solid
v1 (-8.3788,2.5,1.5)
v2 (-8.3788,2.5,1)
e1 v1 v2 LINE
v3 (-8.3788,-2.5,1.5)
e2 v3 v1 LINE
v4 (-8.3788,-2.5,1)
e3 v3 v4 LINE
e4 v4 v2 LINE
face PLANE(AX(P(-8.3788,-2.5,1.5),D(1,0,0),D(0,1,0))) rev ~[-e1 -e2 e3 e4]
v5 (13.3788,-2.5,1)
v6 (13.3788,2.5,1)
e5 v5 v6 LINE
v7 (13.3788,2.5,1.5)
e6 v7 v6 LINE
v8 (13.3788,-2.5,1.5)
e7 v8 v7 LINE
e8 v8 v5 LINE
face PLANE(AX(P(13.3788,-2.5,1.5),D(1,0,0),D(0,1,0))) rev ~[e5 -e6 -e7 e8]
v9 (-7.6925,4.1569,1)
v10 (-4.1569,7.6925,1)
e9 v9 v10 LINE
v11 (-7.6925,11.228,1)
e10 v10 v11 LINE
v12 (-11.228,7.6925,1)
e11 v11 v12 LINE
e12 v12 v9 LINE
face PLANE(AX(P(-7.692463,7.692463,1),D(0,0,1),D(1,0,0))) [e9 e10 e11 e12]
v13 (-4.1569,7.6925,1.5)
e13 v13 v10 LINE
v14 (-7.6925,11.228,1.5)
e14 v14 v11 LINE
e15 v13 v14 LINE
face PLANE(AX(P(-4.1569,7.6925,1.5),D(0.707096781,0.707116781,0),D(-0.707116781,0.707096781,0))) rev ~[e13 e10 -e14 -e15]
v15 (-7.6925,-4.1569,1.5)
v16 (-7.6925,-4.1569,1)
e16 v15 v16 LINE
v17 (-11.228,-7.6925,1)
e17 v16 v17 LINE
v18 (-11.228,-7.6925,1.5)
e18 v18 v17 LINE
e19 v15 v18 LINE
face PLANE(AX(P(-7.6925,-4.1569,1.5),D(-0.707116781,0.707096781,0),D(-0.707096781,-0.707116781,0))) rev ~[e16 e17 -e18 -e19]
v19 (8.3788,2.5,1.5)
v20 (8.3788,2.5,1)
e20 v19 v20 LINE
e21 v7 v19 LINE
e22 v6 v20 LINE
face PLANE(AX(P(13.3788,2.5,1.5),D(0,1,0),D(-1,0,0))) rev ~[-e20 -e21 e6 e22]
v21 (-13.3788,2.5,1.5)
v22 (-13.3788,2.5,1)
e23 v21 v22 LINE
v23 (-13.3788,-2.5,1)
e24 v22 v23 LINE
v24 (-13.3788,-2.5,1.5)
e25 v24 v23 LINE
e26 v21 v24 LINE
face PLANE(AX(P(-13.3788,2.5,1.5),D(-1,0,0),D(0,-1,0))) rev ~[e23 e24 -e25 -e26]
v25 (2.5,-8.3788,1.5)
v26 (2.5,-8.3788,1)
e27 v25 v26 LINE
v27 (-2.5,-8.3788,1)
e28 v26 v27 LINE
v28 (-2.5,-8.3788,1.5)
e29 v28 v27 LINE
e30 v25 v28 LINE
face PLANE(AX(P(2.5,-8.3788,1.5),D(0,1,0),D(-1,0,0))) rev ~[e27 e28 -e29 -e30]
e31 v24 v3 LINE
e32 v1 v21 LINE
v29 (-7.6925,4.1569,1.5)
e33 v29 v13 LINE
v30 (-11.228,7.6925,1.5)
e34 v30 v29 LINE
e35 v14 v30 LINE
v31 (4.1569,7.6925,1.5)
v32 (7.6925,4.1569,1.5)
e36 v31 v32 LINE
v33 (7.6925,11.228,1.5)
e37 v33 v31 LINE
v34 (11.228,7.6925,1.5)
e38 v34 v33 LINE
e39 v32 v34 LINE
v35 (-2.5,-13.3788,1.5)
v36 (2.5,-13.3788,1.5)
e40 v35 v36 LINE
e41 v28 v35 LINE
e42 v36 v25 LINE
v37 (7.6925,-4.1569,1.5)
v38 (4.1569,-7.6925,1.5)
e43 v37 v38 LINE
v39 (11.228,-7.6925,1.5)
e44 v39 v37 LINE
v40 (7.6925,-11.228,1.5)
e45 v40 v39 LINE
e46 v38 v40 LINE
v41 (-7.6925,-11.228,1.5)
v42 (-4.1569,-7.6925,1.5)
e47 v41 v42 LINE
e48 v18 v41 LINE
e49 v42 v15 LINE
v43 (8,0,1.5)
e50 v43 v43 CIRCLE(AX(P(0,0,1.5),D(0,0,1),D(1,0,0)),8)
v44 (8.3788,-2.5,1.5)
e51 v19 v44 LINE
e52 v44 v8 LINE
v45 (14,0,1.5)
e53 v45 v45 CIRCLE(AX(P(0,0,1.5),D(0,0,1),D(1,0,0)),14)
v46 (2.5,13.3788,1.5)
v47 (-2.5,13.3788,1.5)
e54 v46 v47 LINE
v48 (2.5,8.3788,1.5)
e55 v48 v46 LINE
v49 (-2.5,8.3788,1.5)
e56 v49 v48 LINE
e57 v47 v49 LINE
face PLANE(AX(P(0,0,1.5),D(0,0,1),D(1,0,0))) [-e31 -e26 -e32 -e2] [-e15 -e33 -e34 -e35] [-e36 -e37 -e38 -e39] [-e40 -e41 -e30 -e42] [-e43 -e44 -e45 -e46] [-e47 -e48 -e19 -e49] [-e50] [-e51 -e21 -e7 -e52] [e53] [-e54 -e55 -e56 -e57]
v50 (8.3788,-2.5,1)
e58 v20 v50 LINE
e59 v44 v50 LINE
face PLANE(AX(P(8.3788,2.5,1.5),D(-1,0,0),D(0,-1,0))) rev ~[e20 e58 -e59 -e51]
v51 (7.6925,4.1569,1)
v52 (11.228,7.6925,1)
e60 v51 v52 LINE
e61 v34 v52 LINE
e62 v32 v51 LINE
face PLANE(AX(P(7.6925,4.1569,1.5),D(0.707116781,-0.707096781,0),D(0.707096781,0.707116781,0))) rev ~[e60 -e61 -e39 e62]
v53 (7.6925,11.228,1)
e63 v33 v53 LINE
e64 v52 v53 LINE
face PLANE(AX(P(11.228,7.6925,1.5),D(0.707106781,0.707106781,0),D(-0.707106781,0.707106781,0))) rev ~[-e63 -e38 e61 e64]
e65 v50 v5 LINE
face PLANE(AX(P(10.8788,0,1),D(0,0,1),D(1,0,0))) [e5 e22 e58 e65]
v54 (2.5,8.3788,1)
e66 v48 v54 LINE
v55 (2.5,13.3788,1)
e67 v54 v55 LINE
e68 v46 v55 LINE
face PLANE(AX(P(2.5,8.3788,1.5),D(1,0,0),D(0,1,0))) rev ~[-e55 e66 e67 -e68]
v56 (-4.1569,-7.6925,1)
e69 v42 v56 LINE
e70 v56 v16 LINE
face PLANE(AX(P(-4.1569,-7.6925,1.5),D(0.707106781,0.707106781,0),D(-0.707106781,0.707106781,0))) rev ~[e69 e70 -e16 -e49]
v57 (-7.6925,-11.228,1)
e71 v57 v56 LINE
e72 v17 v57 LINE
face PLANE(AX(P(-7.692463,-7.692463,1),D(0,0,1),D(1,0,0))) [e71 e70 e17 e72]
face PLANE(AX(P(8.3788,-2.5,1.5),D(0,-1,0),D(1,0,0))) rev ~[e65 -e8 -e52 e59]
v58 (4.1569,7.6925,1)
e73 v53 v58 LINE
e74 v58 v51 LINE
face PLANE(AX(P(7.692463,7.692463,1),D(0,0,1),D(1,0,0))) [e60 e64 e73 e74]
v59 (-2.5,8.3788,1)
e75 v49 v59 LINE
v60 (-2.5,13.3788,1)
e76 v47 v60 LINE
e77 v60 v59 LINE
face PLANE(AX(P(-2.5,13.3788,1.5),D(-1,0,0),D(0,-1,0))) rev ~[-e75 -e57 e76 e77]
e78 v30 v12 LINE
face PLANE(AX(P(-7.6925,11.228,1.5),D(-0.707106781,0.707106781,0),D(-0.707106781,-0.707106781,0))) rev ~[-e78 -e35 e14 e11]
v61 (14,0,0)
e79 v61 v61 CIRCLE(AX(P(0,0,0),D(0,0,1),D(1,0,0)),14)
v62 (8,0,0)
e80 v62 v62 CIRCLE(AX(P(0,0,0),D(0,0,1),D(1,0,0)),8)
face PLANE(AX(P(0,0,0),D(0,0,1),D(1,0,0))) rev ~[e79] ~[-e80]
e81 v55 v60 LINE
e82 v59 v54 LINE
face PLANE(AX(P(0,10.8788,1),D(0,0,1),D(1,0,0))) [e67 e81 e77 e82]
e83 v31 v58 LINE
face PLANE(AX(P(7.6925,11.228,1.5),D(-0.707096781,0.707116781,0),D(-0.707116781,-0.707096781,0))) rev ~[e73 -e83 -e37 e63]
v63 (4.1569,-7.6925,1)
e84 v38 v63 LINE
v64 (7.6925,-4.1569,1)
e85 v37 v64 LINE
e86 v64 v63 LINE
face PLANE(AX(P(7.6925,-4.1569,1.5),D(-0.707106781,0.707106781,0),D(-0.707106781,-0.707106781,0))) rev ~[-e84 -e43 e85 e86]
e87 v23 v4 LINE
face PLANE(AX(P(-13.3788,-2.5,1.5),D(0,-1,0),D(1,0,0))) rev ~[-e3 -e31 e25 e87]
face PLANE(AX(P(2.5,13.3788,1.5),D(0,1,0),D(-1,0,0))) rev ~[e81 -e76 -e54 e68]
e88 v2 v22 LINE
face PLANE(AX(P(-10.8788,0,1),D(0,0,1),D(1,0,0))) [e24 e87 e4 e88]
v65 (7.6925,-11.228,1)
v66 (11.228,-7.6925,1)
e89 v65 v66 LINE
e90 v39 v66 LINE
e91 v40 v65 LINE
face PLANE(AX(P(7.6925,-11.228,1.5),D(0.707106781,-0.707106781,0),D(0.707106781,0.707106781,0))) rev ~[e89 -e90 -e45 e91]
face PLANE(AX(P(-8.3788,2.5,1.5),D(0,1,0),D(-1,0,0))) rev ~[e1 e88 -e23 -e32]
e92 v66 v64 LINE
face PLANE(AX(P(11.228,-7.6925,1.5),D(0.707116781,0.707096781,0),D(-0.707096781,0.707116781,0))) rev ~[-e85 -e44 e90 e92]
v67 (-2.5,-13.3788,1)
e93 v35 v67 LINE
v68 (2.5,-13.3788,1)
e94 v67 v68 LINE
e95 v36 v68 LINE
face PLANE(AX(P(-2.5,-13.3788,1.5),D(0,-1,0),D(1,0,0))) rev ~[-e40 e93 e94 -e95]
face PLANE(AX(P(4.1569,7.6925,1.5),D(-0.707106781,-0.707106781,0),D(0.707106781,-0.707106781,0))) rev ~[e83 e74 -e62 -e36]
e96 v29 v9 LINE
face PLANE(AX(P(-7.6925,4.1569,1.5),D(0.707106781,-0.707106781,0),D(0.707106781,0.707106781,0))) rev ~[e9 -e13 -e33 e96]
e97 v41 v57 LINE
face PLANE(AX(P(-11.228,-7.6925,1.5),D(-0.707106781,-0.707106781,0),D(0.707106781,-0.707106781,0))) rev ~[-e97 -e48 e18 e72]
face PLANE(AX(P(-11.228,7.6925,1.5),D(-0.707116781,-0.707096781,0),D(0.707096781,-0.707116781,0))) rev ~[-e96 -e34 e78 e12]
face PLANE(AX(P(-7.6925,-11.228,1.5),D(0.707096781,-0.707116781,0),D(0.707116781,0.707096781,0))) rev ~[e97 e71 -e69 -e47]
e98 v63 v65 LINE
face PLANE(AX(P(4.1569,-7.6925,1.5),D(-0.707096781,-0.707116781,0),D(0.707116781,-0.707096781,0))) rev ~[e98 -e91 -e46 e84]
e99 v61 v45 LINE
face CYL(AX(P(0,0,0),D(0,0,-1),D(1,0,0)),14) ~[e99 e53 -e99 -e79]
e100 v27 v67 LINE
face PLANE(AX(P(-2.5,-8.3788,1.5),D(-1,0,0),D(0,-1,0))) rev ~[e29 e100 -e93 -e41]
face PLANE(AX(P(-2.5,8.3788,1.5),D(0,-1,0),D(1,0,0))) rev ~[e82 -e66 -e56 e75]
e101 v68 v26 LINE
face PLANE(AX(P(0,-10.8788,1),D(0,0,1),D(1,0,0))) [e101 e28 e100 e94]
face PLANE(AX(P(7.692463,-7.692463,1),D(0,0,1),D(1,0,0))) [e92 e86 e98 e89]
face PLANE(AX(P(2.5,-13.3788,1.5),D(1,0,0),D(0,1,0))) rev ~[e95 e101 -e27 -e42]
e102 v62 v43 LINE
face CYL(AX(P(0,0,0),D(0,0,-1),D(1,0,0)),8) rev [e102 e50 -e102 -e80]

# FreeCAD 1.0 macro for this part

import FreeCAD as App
import Part
import Sketcher
Q = App.Units.Quantity

doc = App.newDocument("Part")
body = doc.addObject("PartDesign::Body", "Body")

sketch1 = body.newObject("Sketcher::SketchObject", "Sketch")
sketch1.AttachmentSupport = (doc.getObject("XY_Plane"), [""])
sketch1.MapMode = "FlatFace"
sketch1.addGeometry([
    Part.Circle(App.Vector(0, 0, 0), App.Vector(0, 0, 1), 14),
    Part.Circle(App.Vector(0, 0, 0), App.Vector(0, 0, 1), 8),
], False)
sketch1.addConstraint([
    Sketcher.Constraint("Coincident", 0, 3, -1, 1),
    Sketcher.Constraint("Coincident", 1, 3, -1, 1),
    Sketcher.Constraint("Diameter", 0, Q("28 mm")),
    Sketcher.Constraint("Diameter", 1, Q("16 mm")),
])
pad1 = body.newObject("PartDesign::Pad", "Pad")
pad1.Profile = sketch1
pad1.Length = 1.5

sketch2 = body.newObject("Sketcher::SketchObject", "Sketch001")
sketch2.AttachmentSupport = (doc.getObject("XY_Plane"), [""])
sketch2.MapMode = "FlatFace"
sketch2.AttachmentOffset = App.Placement(App.Vector(0, 0, 1.5), App.Rotation())
sketch2.addGeometry([
    Part.LineSegment(App.Vector(4.2, -7.7, 0), App.Vector(7.7, -11.2, 0)),
    Part.LineSegment(App.Vector(7.7, -11.2, 0), App.Vector(11.2, -7.7, 0)),
    Part.LineSegment(App.Vector(11.2, -7.7, 0), App.Vector(7.7, -4.2, 0)),
    Part.LineSegment(App.Vector(7.7, -4.2, 0), App.Vector(4.2, -7.7, 0)),
    Part.LineSegment(App.Vector(8.4, -2.5, 0), App.Vector(13.4, -2.5, 0)),
    Part.LineSegment(App.Vector(13.4, -2.5, 0), App.Vector(13.4, 2.5, 0)),
    Part.LineSegment(App.Vector(13.4, 2.5, 0), App.Vector(8.4, 2.5, 0)),
    Part.LineSegment(App.Vector(8.4, 2.5, 0), App.Vector(8.4, -2.5, 0)),
    Part.LineSegment(App.Vector(4.2, 7.7, 0), App.Vector(7.7, 4.2, 0)),
    Part.LineSegment(App.Vector(7.7, 4.2, 0), App.Vector(11.2, 7.7, 0)),
    Part.LineSegment(App.Vector(11.2, 7.7, 0), App.Vector(7.7, 11.2, 0)),
    Part.LineSegment(App.Vector(7.7, 11.2, 0), App.Vector(4.2, 7.7, 0)),
    Part.LineSegment(App.Vector(-2.5, 13.4, 0), App.Vector(-2.5, 8.4, 0)),
    Part.LineSegment(App.Vector(-2.5, 8.4, 0), App.Vector(2.5, 8.4, 0)),
    Part.LineSegment(App.Vector(2.5, 8.4, 0), App.Vector(2.5, 13.4, 0)),
    Part.LineSegment(App.Vector(2.5, 13.4, 0), App.Vector(-2.5, 13.4, 0)),
    Part.LineSegment(App.Vector(-11.2, 7.7, 0), App.Vector(-7.7, 4.2, 0)),
    Part.LineSegment(App.Vector(-7.7, 4.2, 0), App.Vector(-4.2, 7.7, 0)),
    Part.LineSegment(App.Vector(-4.2, 7.7, 0), App.Vector(-7.7, 11.2, 0)),
    Part.LineSegment(App.Vector(-7.7, 11.2, 0), App.Vector(-11.2, 7.7, 0)),
    Part.LineSegment(App.Vector(-13.4, 2.5, 0), App.Vector(-13.4, -2.5, 0)),
    Part.LineSegment(App.Vector(-13.4, -2.5, 0), App.Vector(-8.4, -2.5, 0)),
    Part.LineSegment(App.Vector(-8.4, -2.5, 0), App.Vector(-8.4, 2.5, 0)),
    Part.LineSegment(App.Vector(-8.4, 2.5, 0), App.Vector(-13.4, 2.5, 0)),
    Part.LineSegment(App.Vector(-7.7, -11.2, 0), App.Vector(-4.2, -7.7, 0)),
    Part.LineSegment(App.Vector(-4.2, -7.7, 0), App.Vector(-7.7, -4.2, 0)),
    Part.LineSegment(App.Vector(-7.7, -4.2, 0), App.Vector(-11.2, -7.7, 0)),
    Part.LineSegment(App.Vector(-11.2, -7.7, 0), App.Vector(-7.7, -11.2, 0)),
    Part.LineSegment(App.Vector(2.5, -13.4, 0), App.Vector(2.5, -8.4, 0)),
    Part.LineSegment(App.Vector(2.5, -8.4, 0), App.Vector(-2.5, -8.4, 0)),
    Part.LineSegment(App.Vector(-2.5, -8.4, 0), App.Vector(-2.5, -13.4, 0)),
    Part.LineSegment(App.Vector(-2.5, -13.4, 0), App.Vector(2.5, -13.4, 0)),
], False)
sketch2.addConstraint([
    Sketcher.Constraint("Coincident", 0, 2, 1, 1),
    Sketcher.Constraint("Coincident", 1, 2, 2, 1),
    Sketcher.Constraint("Coincident", 2, 2, 3, 1),
    Sketcher.Constraint("Coincident", 3, 2, 0, 1),
    Sketcher.Constraint("Coincident", 4, 2, 5, 1),
    Sketcher.Constraint("Coincident", 5, 2, 6, 1),
    Sketcher.Constraint("Coincident", 6, 2, 7, 1),
    Sketcher.Constraint("Coincident", 7, 2, 4, 1),
    Sketcher.Constraint("Coincident", 8, 2, 9, 1),
    Sketcher.Constraint("Coincident", 9, 2, 10, 1),
    Sketcher.Constraint("Coincident", 10, 2, 11, 1),
    Sketcher.Constraint("Coincident", 11, 2, 8, 1),
    Sketcher.Constraint("Coincident", 12, 2, 13, 1),
    Sketcher.Constraint("Coincident", 13, 2, 14, 1),
    Sketcher.Constraint("Coincident", 14, 2, 15, 1),
    Sketcher.Constraint("Coincident", 15, 2, 12, 1),
    Sketcher.Constraint("Coincident", 16, 2, 17, 1),
    Sketcher.Constraint("Coincident", 17, 2, 18, 1),
    Sketcher.Constraint("Coincident", 18, 2, 19, 1),
    Sketcher.Constraint("Coincident", 19, 2, 16, 1),
    Sketcher.Constraint("Coincident", 20, 2, 21, 1),
    Sketcher.Constraint("Coincident", 21, 2, 22, 1),
    Sketcher.Constraint("Coincident", 22, 2, 23, 1),
    Sketcher.Constraint("Coincident", 23, 2, 20, 1),
    Sketcher.Constraint("Coincident", 24, 2, 25, 1),
    Sketcher.Constraint("Coincident", 25, 2, 26, 1),
    Sketcher.Constraint("Coincident", 26, 2, 27, 1),
    Sketcher.Constraint("Coincident", 27, 2, 24, 1),
    Sketcher.Constraint("Coincident", 28, 2, 29, 1),
    Sketcher.Constraint("Coincident", 29, 2, 30, 1),
    Sketcher.Constraint("Coincident", 30, 2, 31, 1),
    Sketcher.Constraint("Coincident", 31, 2, 28, 1),
    Sketcher.Constraint("Horizontal", 4),
    Sketcher.Constraint("Vertical", 5),
    Sketcher.Constraint("Horizontal", 6),
    Sketcher.Constraint("Vertical", 7),
    Sketcher.Constraint("Vertical", 12),
    Sketcher.Constraint("Horizontal", 13),
    Sketcher.Constraint("Vertical", 14),
    Sketcher.Constraint("Horizontal", 15),
    Sketcher.Constraint("Vertical", 20),
    Sketcher.Constraint("Horizontal", 21),
    Sketcher.Constraint("Vertical", 22),
    Sketcher.Constraint("Horizontal", 23),
    Sketcher.Constraint("Vertical", 28),
    Sketcher.Constraint("Horizontal", 29),
    Sketcher.Constraint("Vertical", 30),
    Sketcher.Constraint("Horizontal", 31),
    Sketcher.Constraint("Symmetric", 2, 2, 16, 2, -1, 1),
    Sketcher.Constraint("Symmetric", 3, 2, 17, 2, -1, 1),
    Sketcher.Constraint("Symmetric", 0, 2, 18, 2, -1, 1),
    Sketcher.Constraint("Symmetric", 1, 2, 19, 2, -1, 1),
    Sketcher.Constraint("Symmetric", 5, 2, 20, 2, -1, 1),
    Sketcher.Constraint("Symmetric", 7, 2, 22, 2, -1, 1),
    Sketcher.Constraint("Symmetric", 11, 2, 24, 2, -1, 1),
    Sketcher.Constraint("Symmetric", 8, 2, 25, 2, -1, 1),
    Sketcher.Constraint("Symmetric", 9, 2, 26, 2, -1, 1),
    Sketcher.Constraint("Symmetric", 10, 2, 27, 2, -1, 1),
    Sketcher.Constraint("Symmetric", 12, 2, 28, 2, -1, 1),
    Sketcher.Constraint("Symmetric", 14, 2, 30, 2, -1, 1),
    Sketcher.Constraint("Symmetric", 8, 2, 16, 2, -2),
    Sketcher.Constraint("Symmetric", 11, 2, 17, 2, -2),
    Sketcher.Constraint("Symmetric", 10, 2, 18, 2, -2),
    Sketcher.Constraint("Symmetric", 9, 2, 19, 2, -2),
    Sketcher.Constraint("Perpendicular", 0, 1),
    Sketcher.Constraint("Perpendicular", 1, 2),
    Sketcher.Constraint("Perpendicular", 2, 3),
    Sketcher.Constraint("Perpendicular", 3, 8),
    Sketcher.Constraint("Horizontal", 1, 2, 3, 2),
    Sketcher.Constraint("Horizontal", 7, 2, 20, 2),
    Sketcher.Constraint("Vertical", 14, 2, 28, 2),
    Sketcher.Constraint("Equal", 6, 13),
    Sketcher.Constraint("Equal", 31, 5),
    Sketcher.Constraint("Equal", 7, 12),
    Sketcher.Constraint("DistanceX", 4, 1, 4, 2, Q("5 mm")),
    Sketcher.Constraint("Distance", 0, Q("5 mm")),
    Sketcher.Constraint("DistanceY", 0, 2, -1, 1, Q("11.228 mm")),
    Sketcher.Constraint("DistanceX", -1, 1, 1, 2, Q("11.228 mm")),
    Sketcher.Constraint("DistanceX", 3, 2, 4, 2, Q("9.222 mm")),
    Sketcher.Constraint("DistanceY", 8, 2, 12, 2, Q("4.222 mm")),
])
pocket1 = body.newObject("PartDesign::Pocket", "Pocket")
pocket1.Profile = sketch2
pocket1.Length = 0.5

doc.recompute()
